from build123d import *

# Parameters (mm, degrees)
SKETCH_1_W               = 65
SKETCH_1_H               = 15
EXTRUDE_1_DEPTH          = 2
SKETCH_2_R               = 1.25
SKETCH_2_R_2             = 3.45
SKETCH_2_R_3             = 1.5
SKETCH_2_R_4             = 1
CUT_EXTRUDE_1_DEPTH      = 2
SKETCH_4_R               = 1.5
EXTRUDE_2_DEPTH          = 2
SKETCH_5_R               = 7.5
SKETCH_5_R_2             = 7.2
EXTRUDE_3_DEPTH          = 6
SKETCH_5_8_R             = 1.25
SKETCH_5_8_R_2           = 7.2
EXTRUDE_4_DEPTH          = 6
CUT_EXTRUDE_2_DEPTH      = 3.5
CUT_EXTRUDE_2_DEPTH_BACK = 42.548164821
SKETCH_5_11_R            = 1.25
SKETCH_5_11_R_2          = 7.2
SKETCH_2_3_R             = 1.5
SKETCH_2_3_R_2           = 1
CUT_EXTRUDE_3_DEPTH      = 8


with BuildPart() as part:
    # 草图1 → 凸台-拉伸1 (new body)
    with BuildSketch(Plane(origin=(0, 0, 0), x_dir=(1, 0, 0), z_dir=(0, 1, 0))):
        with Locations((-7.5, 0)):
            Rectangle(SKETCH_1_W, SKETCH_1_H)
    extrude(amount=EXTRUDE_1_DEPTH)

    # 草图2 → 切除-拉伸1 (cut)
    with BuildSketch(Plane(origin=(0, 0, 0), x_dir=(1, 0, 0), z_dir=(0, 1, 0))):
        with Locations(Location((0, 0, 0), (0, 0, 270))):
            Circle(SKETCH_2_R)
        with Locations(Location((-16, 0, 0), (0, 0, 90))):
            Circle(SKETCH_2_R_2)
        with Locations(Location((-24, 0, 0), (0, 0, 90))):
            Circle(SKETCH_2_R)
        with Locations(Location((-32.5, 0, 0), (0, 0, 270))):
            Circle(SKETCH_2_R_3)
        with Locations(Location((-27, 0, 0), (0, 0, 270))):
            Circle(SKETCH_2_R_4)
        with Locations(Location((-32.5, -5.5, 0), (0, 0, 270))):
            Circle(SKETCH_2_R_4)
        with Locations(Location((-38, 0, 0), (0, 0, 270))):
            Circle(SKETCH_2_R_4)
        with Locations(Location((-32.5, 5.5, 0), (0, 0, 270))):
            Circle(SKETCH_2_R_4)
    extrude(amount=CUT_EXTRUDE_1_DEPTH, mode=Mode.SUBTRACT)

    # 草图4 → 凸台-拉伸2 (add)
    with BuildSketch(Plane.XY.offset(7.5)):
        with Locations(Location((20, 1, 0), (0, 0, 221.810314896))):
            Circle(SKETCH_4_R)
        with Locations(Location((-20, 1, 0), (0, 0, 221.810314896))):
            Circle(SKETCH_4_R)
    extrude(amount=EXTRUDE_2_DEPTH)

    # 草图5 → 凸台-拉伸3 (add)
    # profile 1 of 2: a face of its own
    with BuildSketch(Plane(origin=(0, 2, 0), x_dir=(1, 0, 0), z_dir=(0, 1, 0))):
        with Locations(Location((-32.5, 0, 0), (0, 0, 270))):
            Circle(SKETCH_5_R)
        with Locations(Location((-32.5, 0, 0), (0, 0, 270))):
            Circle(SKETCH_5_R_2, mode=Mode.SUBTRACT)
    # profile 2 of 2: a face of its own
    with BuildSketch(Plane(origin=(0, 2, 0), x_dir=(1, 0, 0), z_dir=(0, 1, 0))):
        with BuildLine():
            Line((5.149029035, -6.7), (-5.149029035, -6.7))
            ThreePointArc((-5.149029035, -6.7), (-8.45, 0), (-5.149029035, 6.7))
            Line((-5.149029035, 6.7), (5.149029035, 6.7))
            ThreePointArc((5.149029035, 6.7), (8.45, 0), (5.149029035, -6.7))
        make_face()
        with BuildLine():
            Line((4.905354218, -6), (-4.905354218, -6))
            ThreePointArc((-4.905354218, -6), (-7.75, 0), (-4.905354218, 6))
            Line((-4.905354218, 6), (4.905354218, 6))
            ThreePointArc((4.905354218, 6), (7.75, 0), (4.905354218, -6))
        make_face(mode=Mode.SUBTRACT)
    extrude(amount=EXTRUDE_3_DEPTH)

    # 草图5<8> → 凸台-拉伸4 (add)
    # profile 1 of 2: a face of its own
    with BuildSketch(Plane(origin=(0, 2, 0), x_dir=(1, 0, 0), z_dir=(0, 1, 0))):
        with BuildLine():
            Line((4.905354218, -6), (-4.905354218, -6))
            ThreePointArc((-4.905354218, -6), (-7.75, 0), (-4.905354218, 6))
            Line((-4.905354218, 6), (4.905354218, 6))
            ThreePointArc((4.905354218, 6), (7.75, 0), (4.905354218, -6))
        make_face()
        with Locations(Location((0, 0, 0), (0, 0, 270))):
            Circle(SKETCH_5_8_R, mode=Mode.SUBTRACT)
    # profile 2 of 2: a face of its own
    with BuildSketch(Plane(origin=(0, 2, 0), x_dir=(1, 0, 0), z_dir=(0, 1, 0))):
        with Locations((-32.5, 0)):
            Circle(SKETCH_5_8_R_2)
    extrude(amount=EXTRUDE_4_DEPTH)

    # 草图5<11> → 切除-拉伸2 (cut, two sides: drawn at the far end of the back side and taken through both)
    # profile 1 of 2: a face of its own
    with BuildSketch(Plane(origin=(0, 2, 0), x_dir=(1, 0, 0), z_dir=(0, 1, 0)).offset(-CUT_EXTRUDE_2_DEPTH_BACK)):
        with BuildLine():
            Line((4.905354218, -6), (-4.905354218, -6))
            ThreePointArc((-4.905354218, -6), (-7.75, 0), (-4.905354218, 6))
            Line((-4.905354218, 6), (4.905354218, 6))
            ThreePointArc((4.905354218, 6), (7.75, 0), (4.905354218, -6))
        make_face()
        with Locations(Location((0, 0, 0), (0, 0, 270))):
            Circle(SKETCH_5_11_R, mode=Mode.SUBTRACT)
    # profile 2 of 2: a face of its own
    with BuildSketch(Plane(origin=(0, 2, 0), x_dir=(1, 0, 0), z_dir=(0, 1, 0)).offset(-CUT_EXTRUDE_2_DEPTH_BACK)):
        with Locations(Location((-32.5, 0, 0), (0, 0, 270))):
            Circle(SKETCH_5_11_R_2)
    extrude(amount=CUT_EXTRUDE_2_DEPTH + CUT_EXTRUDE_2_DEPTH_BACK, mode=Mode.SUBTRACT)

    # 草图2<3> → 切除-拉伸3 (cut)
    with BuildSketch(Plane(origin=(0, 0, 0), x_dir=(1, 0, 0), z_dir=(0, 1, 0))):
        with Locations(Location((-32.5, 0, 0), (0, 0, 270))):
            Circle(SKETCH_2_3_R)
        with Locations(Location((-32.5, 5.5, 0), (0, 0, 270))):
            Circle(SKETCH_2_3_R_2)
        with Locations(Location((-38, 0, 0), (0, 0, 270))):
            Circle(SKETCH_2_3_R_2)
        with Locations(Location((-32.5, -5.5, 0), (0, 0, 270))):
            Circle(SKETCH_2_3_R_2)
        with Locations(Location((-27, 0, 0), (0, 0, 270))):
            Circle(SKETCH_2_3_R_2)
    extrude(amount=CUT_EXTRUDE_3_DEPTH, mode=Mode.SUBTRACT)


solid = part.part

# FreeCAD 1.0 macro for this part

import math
import FreeCAD as App
import Part
import Sketcher

V = App.Vector
Q = App.Units.Quantity

doc = App.newDocument("Part")
body = doc.addObject("PartDesign::Body", "Body")

# Sketch on XZ plane
sketch1 = doc.addObject("Sketcher::SketchObject", "Sketch")
body.addObject(sketch1)
sketch1.AttachmentSupport = (doc.XZ_Plane, [""])
sketch1.MapMode = "FlatFace"
sketch1.addGeometry([
    Part.LineSegment(V(-40, -8, 0), V(-40, 8, 0)),
    Part.LineSegment(V(-40, 8, 0), V(25, 8, 0)),
    Part.LineSegment(V(25, 8, 0), V(25, -8, 0)),
    Part.LineSegment(V(25, -8, 0), V(-40, -8, 0)),
], False)
sketch1.addConstraint([
    Sketcher.Constraint("Coincident", 0, 2, 1, 1),
    Sketcher.Constraint("Coincident", 1, 2, 2, 1),
    Sketcher.Constraint("Coincident", 2, 2, 3, 1),
    Sketcher.Constraint("Coincident", 3, 2, 0, 1),
    Sketcher.Constraint("Vertical", 0),
    Sketcher.Constraint("Horizontal", 1),
    Sketcher.Constraint("Vertical", 2),
    Sketcher.Constraint("Horizontal", 3),
    Sketcher.Constraint("DistanceX", 1, 1, 1, 2, Q("65 mm")),
    Sketcher.Constraint("DistanceY", 0, 1, 0, 2, Q("15 mm")),
    Sketcher.Constraint("DistanceX", 0, 2, -1, 1, Q("40 mm")),
    Sketcher.Constraint("DistanceY", -1, 1, 0, 2, Q("7.5 mm")),
])
pad1 = doc.addObject("PartDesign::Pad", "Pad")
body.addObject(pad1)
pad1.Profile = sketch1
pad1.Length = 2
pad1.Reversed = True

# Sketch on XZ plane
sketch2 = doc.addObject("Sketcher::SketchObject", "Sketch001")
body.addObject(sketch2)
sketch2.AttachmentSupport = (doc.XZ_Plane, [""])
sketch2.MapMode = "FlatFace"
sketch2.addGeometry([
    Part.Circle(V(0, 0, 0), V(0, 0, 1), 1.2),  # 0
    Part.Circle(V(-16, 0, 0), V(0, 0, 1), 3.5),  # 1
    Part.Circle(V(-24, 0, 0), V(0, 0, 1), 1.2),  # 2
    Part.Circle(V(-32.5, 0, 0), V(0, 0, 1), 1.5),  # 3
    Part.Circle(V(-27, 0, 0), V(0, 0, 1), 1),  # 4
    Part.Circle(V(-32.5, 5.5, 0), V(0, 0, 1), 1),  # 5
    Part.Circle(V(-38, 0, 0), V(0, 0, 1), 1),  # 6
    Part.Circle(V(-32.5, -5.5, 0), V(0, 0, 1), 1),  # 7
], False)
sketch2.addConstraint([
    Sketcher.Constraint("Coincident", 0, 3, -1, 1),
    Sketcher.Constraint("Equal", 0, 2),
    Sketcher.Constraint("Equal", 4, 5),
    Sketcher.Constraint("Equal", 5, 6),
    Sketcher.Constraint("Equal", 6, 7),
    Sketcher.Constraint("Symmetric", 5, 3, 7, 3, -1),
    Sketcher.Constraint("PointOnObject", 1, 3, -1),
    Sketcher.Constraint("PointOnObject", 2, 3, -1),
    Sketcher.Constraint("PointOnObject", 3, 3, -1),
    Sketcher.Constraint("PointOnObject", 4, 3, -1),
    Sketcher.Constraint("PointOnObject", 6, 3, -1),
    Sketcher.Constraint("Vertical", 3, 3, 5, 3),
    Sketcher.Constraint("Diameter", 3, Q("3 mm")),
    Sketcher.Constraint("Diameter", 4, Q("2 mm")),
    Sketcher.Constraint("Diameter", 0, Q("2.5 mm")),
    Sketcher.Constraint("Diameter", 1, Q("6.9 mm")),
    Sketcher.Constraint("DistanceX", 1, 3, -1, 1, Q("16 mm")),
    Sketcher.Constraint("DistanceX", 2, 3, -1, 1, Q("24 mm")),
    Sketcher.Constraint("DistanceX", 4, 3, -1, 1, Q("27 mm")),
    Sketcher.Constraint("DistanceX", 6, 3, -1, 1, Q("38 mm")),
    Sketcher.Constraint("DistanceY", 7, 3, 5, 3, Q("11 mm")),
    Sketcher.Constraint("DistanceX", 3, 3, -1, 1, Q("32.5 mm")),
])
pocket1 = doc.addObject("PartDesign::Pocket", "Pocket")
body.addObject(pocket1)
pocket1.Profile = sketch2
pocket1.Length = 2

# Sketch on XY plane
sketch3 = doc.addObject("Sketcher::SketchObject", "Sketch002")
body.addObject(sketch3)
sketch3.AttachmentSupport = (doc.XY_Plane, [""])
sketch3.MapMode = "FlatFace"
sketch3.AttachmentOffset = App.Placement(V(0, 0, 7.5), App.Rotation())
sketch3.addGeometry([
    Part.Circle(V(20, 1, 0), V(0, 0, 1), 1.5),
    Part.Circle(V(-20, 1, 0), V(0, 0, 1), 1.5),
], False)
sketch3.addConstraint([
    Sketcher.Constraint("Equal", 0, 1),
    Sketcher.Constraint("Symmetric", 0, 3, 1, 3, -2),
    Sketcher.Constraint("Diameter", 0, Q("3 mm")),
    Sketcher.Constraint("DistanceX", -1, 1, 0, 3, Q("20 mm")),
    Sketcher.Constraint("DistanceY", -1, 1, 0, 3, Q("1 mm")),
])
pad2 = doc.addObject("PartDesign::Pad", "Pad001")
body.addObject(pad2)
pad2.Profile = sketch3
pad2.Length = 2

# Sketch on XZ plane
sketch4 = doc.addObject("Sketcher::SketchObject", "Sketch003")
body.addObject(sketch4)
sketch4.AttachmentSupport = (doc.XZ_Plane, [""])
sketch4.MapMode = "FlatFace"
sketch4.AttachmentOffset = App.Placement(V(0, 0, -2), App.Rotation())
sketch4.addGeometry([
    Part.Circle(V(-32, 0, 0), V(0, 0, 1), 8),  # 0
    Part.Circle(V(-32, 0, 0), V(0, 0, 1), 7),  # 1
    Part.LineSegment(V(-5, 7, 0), V(5, 7, 0)),  # 2
    Part.ArcOfCircle(Part.Circle(V(0, 0, 0), V(0, 0, 1), 8), math.radians(-52), math.radians(52)),  # 3
    Part.LineSegment(V(5, -7, 0), V(-5, -7, 0)),  # 4
    Part.ArcOfCircle(Part.Circle(V(0, 0, 0), V(0, 0, 1), 8), math.radians(128), math.radians(232)),  # 5
    Part.LineSegment(V(5, 6, 0), V(-5, 6, 0)),  # 6
    Part.ArcOfCircle(Part.Circle(V(0, 0, 0), V(0, 0, 1), 8), math.radians(129), math.radians(231)),  # 7
    Part.LineSegment(V(-5, -6, 0), V(5, -6, 0)),  # 8
    Part.ArcOfCircle(Part.Circle(V(0, 0, 0), V(0, 0, 1), 8), math.radians(-51), math.radians(51)),  # 9
], False)
sketch4.addConstraint([
    Sketcher.Constraint("Coincident", 2, 2, 3, 2),
    Sketcher.Constraint("Coincident", 3, 1, 4, 1),
    Sketcher.Constraint("Coincident", 4, 2, 5, 2),
    Sketcher.Constraint("Coincident", 5, 1, 2, 1),
    Sketcher.Constraint("Coincident", 6, 2, 7, 1),
    Sketcher.Constraint("Coincident", 7, 2, 8, 1),
    Sketcher.Constraint("Coincident", 8, 2, 9, 1),
    Sketcher.Constraint("Coincident", 9, 2, 6, 1),
    Sketcher.Constraint("Horizontal", 2),
    Sketcher.Constraint("Horizontal", 4),
    Sketcher.Constraint("Horizontal", 6),
    Sketcher.Constraint("Horizontal", 8),
    Sketcher.Constraint("Coincident", 3, 3, -1, 1),
    Sketcher.Constraint("Coincident", 5, 3, -1, 1),
    Sketcher.Constraint("Coincident", 7, 3, -1, 1),
    Sketcher.Constraint("Coincident", 9, 3, -1, 1),
    Sketcher.Constraint("Coincident", 1, 3, 0, 3),
    Sketcher.Constraint("Equal", 3, 5),
    Sketcher.Constraint("Equal", 7, 9),
    Sketcher.Constraint("PointOnObject", 0, 3, -1),
    Sketcher.Constraint("Vertical", 2, 2, 3, 1),
    Sketcher.Constraint("Vertical", 6, 2, 7, 2),
    Sketcher.Constraint("Diameter", 0, Q("15 mm")),
    Sketcher.Constraint("Diameter", 1, Q("14.4 mm")),
    Sketcher.Constraint("Radius", 3, Q("8.45 mm")),
    Sketcher.Constraint("Radius", 7, Q("7.75 mm")),
    Sketcher.Constraint("DistanceY", -1, 1, 6, 2, Q("6 mm")),
    Sketcher.Constraint("DistanceX", 0, 3, -1, 1, Q("32.5 mm")),
    Sketcher.Constraint("DistanceY", -1, 1, 2, 2, Q("6.7 mm")),
])
pad3 = doc.addObject("PartDesign::Pad", "Pad002")
body.addObject(pad3)
pad3.Profile = sketch4
pad3.Length = 6
pad3.Reversed = True

# Sketch on XZ plane
sketch5 = doc.addObject("Sketcher::SketchObject", "Sketch004")
body.addObject(sketch5)
sketch5.AttachmentSupport = (doc.XZ_Plane, [""])
sketch5.MapMode = "FlatFace"
sketch5.AttachmentOffset = App.Placement(V(0, 0, -2), App.Rotation())
sketch5.addGeometry([
    Part.LineSegment(V(-4.9, 6, 0), V(4.9, 6, 0)),  # 0
    Part.ArcOfCircle(Part.Circle(V(0, 0, 0), V(0, 0, 1), 7.8), math.radians(-51), math.radians(51)),  # 1
    Part.LineSegment(V(4.9, -6, 0), V(-4.9, -6, 0)),  # 2
    Part.ArcOfCircle(Part.Circle(V(0, 0, 0), V(0, 0, 1), 7.8), math.radians(129), math.radians(231)),  # 3
    Part.Circle(V(0, 0, 0), V(0, 0, 1), 1.2),  # 4
    Part.Circle(V(-32.5, 0, 0), V(0, 0, 1), 7.2),  # 5
], False)
sketch5.addConstraint([
    Sketcher.Constraint("Coincident", 0, 2, 1, 2),
    Sketcher.Constraint("Coincident", 1, 1, 2, 1),
    Sketcher.Constraint("Coincident", 2, 2, 3, 2),
    Sketcher.Constraint("Coincident", 3, 1, 0, 1),
    Sketcher.Constraint("Horizontal", 0),
    Sketcher.Constraint("Horizontal", 2),
    Sketcher.Constraint("Coincident", 1, 3, -1, 1),
    Sketcher.Constraint("Coincident", 3, 3, -1, 1),
    Sketcher.Constraint("Coincident", 4, 3, -1, 1),
    Sketcher.Constraint("Equal", 1, 3),
    Sketcher.Constraint("PointOnObject", 5, 3, -1),
    Sketcher.Constraint("Vertical", 0, 2, 1, 1),
    Sketcher.Constraint("Diameter", 4, Q("2.5 mm")),
    Sketcher.Constraint("Diameter", 5, Q("14.4 mm")),
    Sketcher.Constraint("Radius", 1, Q("7.75 mm")),
    Sketcher.Constraint("DistanceY", -1, 1, 0, 2, Q("6 mm")),
    Sketcher.Constraint("DistanceX", 5, 3, -1, 1, Q("32.5 mm")),
])
pad4 = doc.addObject("PartDesign::Pad", "Pad003")
body.addObject(pad4)
pad4.Profile = sketch5
pad4.Length = 6
pad4.Reversed = True

# Sketch on XZ plane
sketch6 = doc.addObject("Sketcher::SketchObject", "Sketch005")
body.addObject(sketch6)
sketch6.AttachmentSupport = (doc.XZ_Plane, [""])
sketch6.MapMode = "FlatFace"
sketch6.AttachmentOffset = App.Placement(V(0, 0, -2), App.Rotation())
sketch6.addGeometry([
    Part.LineSegment(V(-4.9, 6, 0), V(4.9, 6, 0)),  # 0
    Part.ArcOfCircle(Part.Circle(V(0, 0, 0), V(0, 0, 1), 7.8), math.radians(-51), math.radians(51)),  # 1
    Part.LineSegment(V(4.9, -6, 0), V(-4.9, -6, 0)),  # 2
    Part.ArcOfCircle(Part.Circle(V(0, 0, 0), V(0, 0, 1), 7.8), math.radians(129), math.radians(231)),  # 3
    Part.Circle(V(0, 0, 0), V(0, 0, 1), 1.2),  # 4
    Part.Circle(V(-32.5, 0, 0), V(0, 0, 1), 7.2),  # 5
], False)
sketch6.addConstraint([
    Sketcher.Constraint("Coincident", 0, 2, 1, 2),
    Sketcher.Constraint("Coincident", 1, 1, 2, 1),
    Sketcher.Constraint("Coincident", 2, 2, 3, 2),
    Sketcher.Constraint("Coincident", 3, 1, 0, 1),
    Sketcher.Constraint("Horizontal", 0),
    Sketcher.Constraint("Horizontal", 2),
    Sketcher.Constraint("Coincident", 1, 3, -1, 1),
    Sketcher.Constraint("Coincident", 3, 3, -1, 1),
    Sketcher.Constraint("Coincident", 4, 3, -1, 1),
    Sketcher.Constraint("Equal", 1, 3),
    Sketcher.Constraint("PointOnObject", 5, 3, -1),
    Sketcher.Constraint("Vertical", 0, 2, 1, 1),
    Sketcher.Constraint("Diameter", 4, Q("2.5 mm")),
    Sketcher.Constraint("Diameter", 5, Q("14.4 mm")),
    Sketcher.Constraint("Radius", 1, Q("7.75 mm")),
    Sketcher.Constraint("DistanceY", -1, 1, 0, 2, Q("6 mm")),
    Sketcher.Constraint("DistanceX", 5, 3, -1, 1, Q("32.5 mm")),
])
pocket2 = doc.addObject("PartDesign::Pocket", "Pocket001")
body.addObject(pocket2)
pocket2.Profile = sketch6
pocket2.Type = "TwoLengths"
pocket2.Length = 3.5
pocket2.Length2 = 42.548165

# Sketch on XZ plane
sketch7 = doc.addObject("Sketcher::SketchObject", "Sketch006")
body.addObject(sketch7)
sketch7.AttachmentSupport = (doc.XZ_Plane, [""])
sketch7.MapMode = "FlatFace"
sketch7.addGeometry([
    Part.Circle(V(-32.5, 0, 0), V(0, 0, 1), 1.5),  # 0
    Part.Circle(V(-32.5, -5.5, 0), V(0, 0, 1), 1),  # 1
    Part.Circle(V(-38, 0, 0), V(0, 0, 1), 1),  # 2
    Part.Circle(V(-32.5, 5.5, 0), V(0, 0, 1), 1),  # 3
    Part.Circle(V(-27, 0, 0), V(0, 0, 1), 1),  # 4
], False)
sketch7.addConstraint([
    Sketcher.Constraint("Equal", 1, 2),
    Sketcher.Constraint("Equal", 2, 3),
    Sketcher.Constraint("Equal", 3, 4),
    Sketcher.Constraint("Symmetric", 1, 3, 3, 3, -1),
    Sketcher.Constraint("PointOnObject", 0, 3, -1),
    Sketcher.Constraint("PointOnObject", 2, 3, -1),
    Sketcher.Constraint("PointOnObject", 4, 3, -1),
    Sketcher.Constraint("Vertical", 0, 3, 1, 3),
    Sketcher.Constraint("Diameter", 0, Q("3 mm")),
    Sketcher.Constraint("Diameter", 1, Q("2 mm")),
    Sketcher.Constraint("DistanceX", 2, 3, -1, 1, Q("38 mm")),
    Sketcher.Constraint("DistanceX", 4, 3, -1, 1, Q("27 mm")),
    Sketcher.Constraint("DistanceY", 1, 3, 3, 3, Q("11 mm")),
    Sketcher.Constraint("DistanceX", 0, 3, -1, 1, Q("32.5 mm")),
])
pocket3 = doc.addObject("PartDesign::Pocket", "Pocket002")
body.addObject(pocket3)
pocket3.Profile = sketch7
pocket3.Length = 8

doc.recompute()
